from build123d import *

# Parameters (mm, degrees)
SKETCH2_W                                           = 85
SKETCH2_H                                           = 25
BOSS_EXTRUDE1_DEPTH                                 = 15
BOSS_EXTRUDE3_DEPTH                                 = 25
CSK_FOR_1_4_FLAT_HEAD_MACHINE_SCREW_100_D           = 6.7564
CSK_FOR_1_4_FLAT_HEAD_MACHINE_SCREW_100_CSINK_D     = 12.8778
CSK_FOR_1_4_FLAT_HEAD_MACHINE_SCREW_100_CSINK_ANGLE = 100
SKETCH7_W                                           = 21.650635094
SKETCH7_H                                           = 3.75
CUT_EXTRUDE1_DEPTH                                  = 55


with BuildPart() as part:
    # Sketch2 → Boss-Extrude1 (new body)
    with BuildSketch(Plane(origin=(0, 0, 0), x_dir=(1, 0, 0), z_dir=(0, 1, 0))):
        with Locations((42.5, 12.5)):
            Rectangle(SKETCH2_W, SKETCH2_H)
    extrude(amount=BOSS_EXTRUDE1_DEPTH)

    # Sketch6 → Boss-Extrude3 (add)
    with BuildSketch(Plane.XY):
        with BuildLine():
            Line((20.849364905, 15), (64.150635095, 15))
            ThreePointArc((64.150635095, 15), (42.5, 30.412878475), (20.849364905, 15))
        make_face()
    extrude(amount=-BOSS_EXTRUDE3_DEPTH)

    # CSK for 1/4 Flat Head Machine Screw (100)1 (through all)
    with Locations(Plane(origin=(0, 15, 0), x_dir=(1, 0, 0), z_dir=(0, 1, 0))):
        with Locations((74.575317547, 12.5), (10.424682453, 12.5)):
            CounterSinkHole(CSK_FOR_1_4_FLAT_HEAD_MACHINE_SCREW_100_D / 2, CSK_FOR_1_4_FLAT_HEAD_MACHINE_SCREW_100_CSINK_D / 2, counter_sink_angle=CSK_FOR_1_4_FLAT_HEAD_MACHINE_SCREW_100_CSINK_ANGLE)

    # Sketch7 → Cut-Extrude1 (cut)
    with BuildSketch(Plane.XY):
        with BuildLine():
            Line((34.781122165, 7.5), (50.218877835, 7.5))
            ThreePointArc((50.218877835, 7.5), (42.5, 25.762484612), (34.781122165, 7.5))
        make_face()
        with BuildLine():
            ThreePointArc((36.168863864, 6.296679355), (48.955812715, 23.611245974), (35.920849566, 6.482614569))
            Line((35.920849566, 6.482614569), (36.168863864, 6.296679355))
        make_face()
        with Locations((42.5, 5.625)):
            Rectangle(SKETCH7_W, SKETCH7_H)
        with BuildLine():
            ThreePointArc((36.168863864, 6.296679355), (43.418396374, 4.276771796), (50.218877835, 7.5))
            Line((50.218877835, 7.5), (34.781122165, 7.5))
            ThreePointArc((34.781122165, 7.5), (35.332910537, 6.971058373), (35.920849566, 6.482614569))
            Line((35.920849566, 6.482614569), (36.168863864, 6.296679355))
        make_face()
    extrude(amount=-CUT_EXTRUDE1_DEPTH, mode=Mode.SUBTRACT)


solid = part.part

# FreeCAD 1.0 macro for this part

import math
import FreeCAD as App
import Part
import Sketcher
from FreeCAD import Vector
Q = App.Units.Quantity


def add_polygon(sketch, points):
    """Adds a closed chain of lines whose ends are joined by coincident constraints."""
    first, n = sketch.GeometryCount, len(points)
    for a, b in zip(points, points[1:] + points[:1]):
        sketch.addGeometry(Part.LineSegment(App.Vector(*a, 0), App.Vector(*b, 0)), False)
    for i in range(n):
        sketch.addConstraint(Sketcher.Constraint("Coincident", first + i, 2, first + (i + 1) % n, 1))

doc = App.newDocument("Part")
body = doc.addObject("PartDesign::Body", "Body")

sketch1 = body.newObject("Sketcher::SketchObject", "Sketch")
sketch1.AttachmentSupport = (doc.getObject("XZ_Plane"), [""])
sketch1.MapMode = "FlatFace"
add_polygon(sketch1, [(0, -25), (0, 0), (85, 0), (85, -25)])
sketch1.addConstraint([
    Sketcher.Constraint("Vertical", 0),
    Sketcher.Constraint("Horizontal", 1),
    Sketcher.Constraint("Vertical", 2),
    Sketcher.Constraint("Horizontal", 3),
    Sketcher.Constraint("Coincident", 0, 2, -1, 1),
    Sketcher.Constraint("DistanceX", 1, 1, 1, 2, Q("85 mm")),
    Sketcher.Constraint("DistanceY", 0, 1, 0, 2, Q("25 mm")),
])
pad1 = body.newObject("PartDesign::Pad", "Pad")
pad1.Profile = sketch1
pad1.Length = 15
pad1.Reversed = True

sketch2 = body.newObject("Sketcher::SketchObject", "Sketch001")
sketch2.AttachmentSupport = (doc.getObject("XY_Plane"), [""])
sketch2.MapMode = "FlatFace"
sketch2.addGeometry([
    Part.LineSegment(Vector(21, 15, 0), Vector(64, 15, 0)),
    Part.ArcOfCircle(Part.Circle(Vector(42, 8, 0), Vector(0, 0, 1), 23), math.radians(19), math.radians(161)),
], False)
sketch2.addConstraint([
    Sketcher.Constraint("Coincident", 0, 1, 1, 2),
    Sketcher.Constraint("Coincident", 1, 1, 0, 2),
    Sketcher.Constraint("Horizontal", 0),
    Sketcher.Constraint("DistanceY", -1, 1, 0, 1, Q("15 mm")),
    Sketcher.Constraint("DistanceX", -1, 1, 1, 3, Q("42.5 mm")),
    Sketcher.Constraint("DistanceY", -1, 1, 1, 3, Q("7.5 mm")),
    Sketcher.Constraint("Radius", 1, Q("22.912878 mm")),
])
pad2 = body.newObject("PartDesign::Pad", "Pad001")
pad2.Profile = sketch2
pad2.Length = 25
pad2.Reversed = True

sketch3 = body.newObject("Sketcher::SketchObject", "Sketch002")
sketch3.AttachmentSupport = (doc.getObject("XZ_Plane"), [""])
sketch3.MapMode = "FlatFace"
sketch3.AttachmentOffset = App.Placement(Vector(0, 0, -15), App.Rotation())
sketch3.addGeometry([
    Part.Circle(Vector(74.6, -12.5, 0), Vector(0, 0, 1), 3.4),
    Part.Circle(Vector(10.4, -12.5, 0), Vector(0, 0, 1), 3.4),
], False)
sketch3.addConstraint([
    Sketcher.Constraint("Equal", 0, 1),
    Sketcher.Constraint("Horizontal", 0, 3, 1, 3),
    Sketcher.Constraint("Diameter", 0, Q("6.7564 mm")),
    Sketcher.Constraint("DistanceY", 0, 3, -1, 1, Q("12.5 mm")),
    Sketcher.Constraint("DistanceX", -1, 1, 0, 3, Q("74.575318 mm")),
    Sketcher.Constraint("DistanceX", -1, 1, 1, 3, Q("10.424682 mm")),
])
doc.recompute()
hole = body.newObject("PartDesign::Hole", "Hole")
hole.Profile = sketch3
hole.ThreadType = "None"
hole.Diameter = 6.7564
hole.DepthType = "ThroughAll"
hole.HoleCutType = "Countersink"
hole.HoleCutDiameter = 12.8778
hole.HoleCutCountersinkAngle = 100
hole.Reversed = True

sketch4 = body.newObject("Sketcher::SketchObject", "Sketch003")
sketch4.AttachmentSupport = (doc.getObject("XY_Plane"), [""])
sketch4.MapMode = "FlatFace"
sketch4.addGeometry([
    Part.ArcOfCircle(Part.Circle(Vector(42.5, 15, 0), Vector(0, 0, 1), 10.8), math.radians(-44), math.radians(224)),
    Part.LineSegment(Vector(34.8, 7.5, 0), Vector(31.7, 7.5, 0)),
    Part.LineSegment(Vector(31.7, 7.5, 0), Vector(31.7, 3.8, 0)),
    Part.LineSegment(Vector(31.7, 3.8, 0), Vector(53.3, 3.8, 0)),
    Part.LineSegment(Vector(53.3, 3.8, 0), Vector(53.3, 7.5, 0)),
    Part.LineSegment(Vector(53.3, 7.5, 0), Vector(50.2, 7.5, 0)),
], False)
sketch4.addConstraint([
    Sketcher.Constraint("Coincident", 0, 2, 1, 1),
    Sketcher.Constraint("Coincident", 1, 2, 2, 1),
    Sketcher.Constraint("Coincident", 2, 2, 3, 1),
    Sketcher.Constraint("Coincident", 3, 2, 4, 1),
    Sketcher.Constraint("Coincident", 4, 2, 5, 1),
    Sketcher.Constraint("Coincident", 5, 2, 0, 1),
    Sketcher.Constraint("Horizontal", 1),
    Sketcher.Constraint("Vertical", 2),
    Sketcher.Constraint("Horizontal", 3),
    Sketcher.Constraint("Vertical", 4),
    Sketcher.Constraint("Horizontal", 5),
    Sketcher.Constraint("Horizontal", 1, 2, 4, 2),
    Sketcher.Constraint("Equal", 1, 5),
    Sketcher.Constraint("DistanceY", -1, 1, 0, 3, Q("15 mm")),
    Sketcher.Constraint("DistanceY", 2, 2, 2, 1, Q("3.75 mm")),
    Sketcher.Constraint("DistanceX", -1, 1, 0, 3, Q("42.5 mm")),
    Sketcher.Constraint("DistanceY", -1, 1, 0, 2, Q("7.5 mm")),
    Sketcher.Constraint("Radius", 0, Q("10.762485 mm")),
    Sketcher.Constraint("DistanceX", 1, 2, 1, 1, Q("3.10644 mm")),
])
pocket1 = body.newObject("PartDesign::Pocket", "Pocket")
pocket1.Profile = sketch4
pocket1.Length = 55

doc.recompute()
